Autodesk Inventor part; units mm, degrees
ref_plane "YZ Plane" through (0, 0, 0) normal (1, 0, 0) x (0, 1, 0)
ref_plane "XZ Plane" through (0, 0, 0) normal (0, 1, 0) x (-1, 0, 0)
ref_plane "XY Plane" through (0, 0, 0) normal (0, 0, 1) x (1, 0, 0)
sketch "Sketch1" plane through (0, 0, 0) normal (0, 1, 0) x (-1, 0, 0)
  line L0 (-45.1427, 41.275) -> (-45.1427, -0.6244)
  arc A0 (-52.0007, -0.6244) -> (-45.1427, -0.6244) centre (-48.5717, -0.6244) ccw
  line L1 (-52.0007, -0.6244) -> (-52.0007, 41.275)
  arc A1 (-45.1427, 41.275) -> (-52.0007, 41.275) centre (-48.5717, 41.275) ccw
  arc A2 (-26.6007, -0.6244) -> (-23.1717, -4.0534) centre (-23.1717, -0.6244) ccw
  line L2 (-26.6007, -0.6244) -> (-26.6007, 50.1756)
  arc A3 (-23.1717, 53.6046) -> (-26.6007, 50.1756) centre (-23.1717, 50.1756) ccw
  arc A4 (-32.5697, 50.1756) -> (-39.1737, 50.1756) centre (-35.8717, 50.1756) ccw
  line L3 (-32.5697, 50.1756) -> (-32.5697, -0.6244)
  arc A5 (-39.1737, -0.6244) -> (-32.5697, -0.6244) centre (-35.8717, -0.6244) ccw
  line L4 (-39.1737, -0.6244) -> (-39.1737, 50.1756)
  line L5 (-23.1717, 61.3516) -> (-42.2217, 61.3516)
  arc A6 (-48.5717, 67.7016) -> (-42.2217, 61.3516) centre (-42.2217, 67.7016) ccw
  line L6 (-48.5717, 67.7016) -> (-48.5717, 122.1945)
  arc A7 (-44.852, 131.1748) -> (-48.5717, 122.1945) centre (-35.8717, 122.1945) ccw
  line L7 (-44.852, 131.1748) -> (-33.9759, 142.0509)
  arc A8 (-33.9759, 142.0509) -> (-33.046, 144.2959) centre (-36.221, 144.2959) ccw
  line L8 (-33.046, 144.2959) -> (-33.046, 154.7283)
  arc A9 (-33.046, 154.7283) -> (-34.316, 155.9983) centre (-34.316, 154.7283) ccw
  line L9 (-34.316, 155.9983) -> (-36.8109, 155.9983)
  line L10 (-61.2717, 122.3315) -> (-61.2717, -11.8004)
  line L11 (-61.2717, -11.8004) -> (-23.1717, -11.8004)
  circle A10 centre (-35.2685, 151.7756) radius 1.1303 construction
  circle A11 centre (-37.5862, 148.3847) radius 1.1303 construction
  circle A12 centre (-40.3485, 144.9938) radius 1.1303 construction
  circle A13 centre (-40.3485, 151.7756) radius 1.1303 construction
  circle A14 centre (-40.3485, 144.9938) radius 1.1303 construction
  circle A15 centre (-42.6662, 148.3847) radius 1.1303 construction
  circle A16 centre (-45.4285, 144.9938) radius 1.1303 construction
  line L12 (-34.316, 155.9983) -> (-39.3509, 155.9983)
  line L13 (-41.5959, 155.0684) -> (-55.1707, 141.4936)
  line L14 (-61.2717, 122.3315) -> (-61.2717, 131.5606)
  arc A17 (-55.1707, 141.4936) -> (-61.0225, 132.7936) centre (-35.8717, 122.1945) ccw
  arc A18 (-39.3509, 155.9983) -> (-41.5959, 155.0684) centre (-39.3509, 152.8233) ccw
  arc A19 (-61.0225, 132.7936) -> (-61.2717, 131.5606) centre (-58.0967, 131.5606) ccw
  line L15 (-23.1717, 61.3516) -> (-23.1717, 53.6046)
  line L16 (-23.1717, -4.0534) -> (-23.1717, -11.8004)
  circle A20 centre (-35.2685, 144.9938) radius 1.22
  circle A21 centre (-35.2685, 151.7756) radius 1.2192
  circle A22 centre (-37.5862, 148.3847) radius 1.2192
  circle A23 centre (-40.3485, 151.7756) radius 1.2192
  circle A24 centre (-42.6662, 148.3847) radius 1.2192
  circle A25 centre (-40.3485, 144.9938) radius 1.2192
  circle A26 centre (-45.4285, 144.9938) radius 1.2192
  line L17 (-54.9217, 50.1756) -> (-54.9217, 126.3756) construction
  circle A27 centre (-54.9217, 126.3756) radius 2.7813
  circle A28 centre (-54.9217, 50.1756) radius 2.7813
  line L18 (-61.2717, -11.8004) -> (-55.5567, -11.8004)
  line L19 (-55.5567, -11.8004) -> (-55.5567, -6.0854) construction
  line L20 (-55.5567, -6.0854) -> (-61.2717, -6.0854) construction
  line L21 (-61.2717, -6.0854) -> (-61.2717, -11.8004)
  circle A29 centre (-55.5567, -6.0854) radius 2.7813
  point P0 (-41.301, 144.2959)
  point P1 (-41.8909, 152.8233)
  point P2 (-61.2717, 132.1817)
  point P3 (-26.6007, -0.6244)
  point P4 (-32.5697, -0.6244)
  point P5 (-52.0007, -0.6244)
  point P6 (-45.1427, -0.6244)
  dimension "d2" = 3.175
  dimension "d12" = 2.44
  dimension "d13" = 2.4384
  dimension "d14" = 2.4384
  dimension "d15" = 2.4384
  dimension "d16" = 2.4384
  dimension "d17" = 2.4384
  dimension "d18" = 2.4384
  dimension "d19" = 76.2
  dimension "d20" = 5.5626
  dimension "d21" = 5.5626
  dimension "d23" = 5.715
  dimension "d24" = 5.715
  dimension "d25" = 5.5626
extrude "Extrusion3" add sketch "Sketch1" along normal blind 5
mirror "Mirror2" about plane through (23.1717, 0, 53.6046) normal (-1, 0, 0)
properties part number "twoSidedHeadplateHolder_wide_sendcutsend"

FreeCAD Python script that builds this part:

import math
import FreeCAD as App
import Part
import Sketcher
Q = App.Units.Quantity

doc = App.newDocument("Part")
body = doc.addObject("PartDesign::Body", "Body")

sketch1 = body.newObject("Sketcher::SketchObject", "Sketch")
sketch1.AttachmentSupport = (doc.getObject("XZ_Plane"), [""])
sketch1.MapMode = "FlatFace"
sketch1.addGeometry([
    Part.ArcOfCircle(Part.Circle(App.Vector(23.2, -0.6, 0), App.Vector(0, 0, 1), 3.4), math.radians(-90), math.radians(0)),
    Part.LineSegment(App.Vector(26.6, -0.6, 0), App.Vector(26.6, 50.2, 0)),
    Part.ArcOfCircle(Part.Circle(App.Vector(23.2, 50.2, 0), App.Vector(0, 0, 1), 3.4), math.radians(0), math.radians(90)),
    Part.LineSegment(App.Vector(23.2, 53.6, 0), App.Vector(23.2, 61.4, 0)),
    Part.LineSegment(App.Vector(23.2, 61.4, 0), App.Vector(42.2, 61.4, 0)),
    Part.ArcOfCircle(Part.Circle(App.Vector(42.2, 67.7, 0), App.Vector(0, 0, 1), 6.4), math.radians(-90), math.radians(0)),
    Part.LineSegment(App.Vector(48.6, 67.7, 0), App.Vector(48.6, 122.2, 0)),
    Part.ArcOfCircle(Part.Circle(App.Vector(35.9, 122.2, 0), App.Vector(0, 0, 1), 12.7), math.radians(0), math.radians(45)),
    Part.LineSegment(App.Vector(44.9, 131.2, 0), App.Vector(34, 142.1, 0)),
    Part.ArcOfCircle(Part.Circle(App.Vector(36.2, 144.3, 0), App.Vector(0, 0, 1), 3.2), math.radians(180), math.radians(225)),
    Part.LineSegment(App.Vector(33, 144.3, 0), App.Vector(33, 154.7, 0)),
    Part.ArcOfCircle(Part.Circle(App.Vector(34.3, 154.7, 0), App.Vector(0, 0, 1), 1.3), math.radians(90), math.radians(180)),
    Part.LineSegment(App.Vector(34.3, 156, 0), App.Vector(39.4, 156, 0)),
    Part.ArcOfCircle(Part.Circle(App.Vector(39.4, 152.8, 0), App.Vector(0, 0, 1), 3.2), math.radians(45), math.radians(90)),
    Part.LineSegment(App.Vector(41.6, 155.1, 0), App.Vector(55.2, 141.5, 0)),
    Part.ArcOfCircle(Part.Circle(App.Vector(35.9, 122.2, 0), App.Vector(0, 0, 1), 27.3), math.radians(23), math.radians(45)),
    Part.ArcOfCircle(Part.Circle(App.Vector(58.1, 131.6, 0), App.Vector(0, 0, 1), 3.2), math.radians(0), math.radians(23)),
    Part.LineSegment(App.Vector(61.3, 131.6, 0), App.Vector(61.3, -11.8, 0)),
    Part.LineSegment(App.Vector(61.3, -11.8, 0), App.Vector(23.2, -11.8, 0)),
    Part.LineSegment(App.Vector(23.2, -11.8, 0), App.Vector(23.2, -4.1, 0)),
    Part.Circle(App.Vector(55.6, -6.1, 0), App.Vector(0, 0, 1), 2.8),
    Part.ArcOfCircle(Part.Circle(App.Vector(48.6, 41.3, 0), App.Vector(0, 0, 1), 3.4), math.radians(0), math.radians(180)),
    Part.LineSegment(App.Vector(45.1, 41.3, 0), App.Vector(45.1, -0.6, 0)),
    Part.ArcOfCircle(Part.Circle(App.Vector(48.6, -0.6, 0), App.Vector(0, 0, 1), 3.4), math.radians(180), math.radians(360)),
    Part.LineSegment(App.Vector(52, -0.6, 0), App.Vector(52, 41.3, 0)),
    Part.Circle(App.Vector(54.9, 50.2, 0), App.Vector(0, 0, 1), 2.8),
    Part.ArcOfCircle(Part.Circle(App.Vector(35.9, 50.2, 0), App.Vector(0, 0, 1), 3.3), math.radians(0), math.radians(180)),
    Part.LineSegment(App.Vector(32.6, 50.2, 0), App.Vector(32.6, -0.6, 0)),
    Part.ArcOfCircle(Part.Circle(App.Vector(35.9, -0.6, 0), App.Vector(0, 0, 1), 3.3), math.radians(180), math.radians(360)),
    Part.LineSegment(App.Vector(39.2, -0.6, 0), App.Vector(39.2, 50.2, 0)),
    Part.Circle(App.Vector(54.9, 126.4, 0), App.Vector(0, 0, 1), 2.8),
    Part.Circle(App.Vector(45.4, 145, 0), App.Vector(0, 0, 1), 1.2),
    Part.Circle(App.Vector(42.7, 148.4, 0), App.Vector(0, 0, 1), 1.2),
    Part.Circle(App.Vector(40.3, 145, 0), App.Vector(0, 0, 1), 1.2),
    Part.Circle(App.Vector(40.3, 151.8, 0), App.Vector(0, 0, 1), 1.2),
    Part.Circle(App.Vector(37.6, 148.4, 0), App.Vector(0, 0, 1), 1.2),
    Part.Circle(App.Vector(35.3, 145, 0), App.Vector(0, 0, 1), 1.2),
    Part.Circle(App.Vector(35.3, 151.8, 0), App.Vector(0, 0, 1), 1.2),
], False)
sketch1.addConstraint([
    Sketcher.Constraint("Tangent", 0, 2, 1, 1),
    Sketcher.Constraint("Tangent", 1, 2, 2, 1),
    Sketcher.Constraint("Coincident", 2, 2, 3, 1),
    Sketcher.Constraint("Coincident", 3, 2, 4, 1),
    Sketcher.Constraint("Tangent", 4, 2, 5, 1),
    Sketcher.Constraint("Tangent", 5, 2, 6, 1),
    Sketcher.Constraint("Tangent", 6, 2, 7, 1),
    Sketcher.Constraint("Tangent", 7, 2, 8, 1),
    Sketcher.Constraint("Tangent", 8, 2, 9, 2),
    Sketcher.Constraint("Tangent", 9, 1, 10, 1),
    Sketcher.Constraint("Tangent", 10, 2, 11, 2),
    Sketcher.Constraint("Tangent", 11, 1, 12, 1),
    Sketcher.Constraint("Tangent", 12, 2, 13, 2),
    Sketcher.Constraint("Tangent", 13, 1, 14, 1),
    Sketcher.Constraint("Tangent", 14, 2, 15, 2),
    Sketcher.Constraint("Tangent", 15, 1, 16, 2),
    Sketcher.Constraint("Tangent", 16, 1, 17, 1),
    Sketcher.Constraint("Coincident", 17, 2, 18, 1),
    Sketcher.Constraint("Coincident", 18, 2, 19, 1),
    Sketcher.Constraint("Coincident", 19, 2, 0, 1),
    Sketcher.Constraint("Tangent", 21, 2, 22, 1),
    Sketcher.Constraint("Tangent", 22, 2, 23, 1),
    Sketcher.Constraint("Tangent", 23, 2, 24, 1),
    Sketcher.Constraint("Tangent", 24, 2, 21, 1),
    Sketcher.Constraint("Tangent", 26, 2, 27, 1),
    Sketcher.Constraint("Tangent", 27, 2, 28, 1),
    Sketcher.Constraint("Tangent", 28, 2, 29, 1),
    Sketcher.Constraint("Tangent", 29, 2, 26, 1),
    Sketcher.Constraint("Vertical", 1),
    Sketcher.Constraint("Vertical", 3),
    Sketcher.Constraint("Horizontal", 4),
    Sketcher.Constraint("Vertical", 6),
    Sketcher.Constraint("Vertical", 10),
    Sketcher.Constraint("Horizontal", 12),
    Sketcher.Constraint("Vertical", 17),
    Sketcher.Constraint("Horizontal", 18),
    Sketcher.Constraint("Vertical", 19),
    Sketcher.Constraint("Vertical", 22),
    Sketcher.Constraint("Vertical", 24),
    Sketcher.Constraint("Vertical", 27),
    Sketcher.Constraint("Vertical", 29),
    Sketcher.Constraint("Equal", 0, 2),
    Sketcher.Constraint("Equal", 9, 13),
    Sketcher.Constraint("Equal", 13, 16),
    Sketcher.Constraint("Equal", 2, 21),
    Sketcher.Constraint("Equal", 20, 25),
    Sketcher.Constraint("Equal", 25, 30),
    Sketcher.Constraint("Equal", 31, 32),
    Sketcher.Constraint("Equal", 32, 33),
    Sketcher.Constraint("Equal", 33, 34),
    Sketcher.Constraint("Equal", 34, 35),
    Sketcher.Constraint("Equal", 35, 37),
    Sketcher.Constraint("Parallel", 8, 14),
    Sketcher.Constraint("Horizontal", 0, 3, 23, 3),
    Sketcher.Constraint("Horizontal", 2, 3, 25, 3),
    Sketcher.Constraint("Horizontal", 25, 3, 26, 3),
    Sketcher.Constraint("Horizontal", 23, 3, 28, 3),
    Sketcher.Constraint("Horizontal", 31, 3, 33, 3),
    Sketcher.Constraint("Horizontal", 32, 3, 35, 3),
    Sketcher.Constraint("Horizontal", 33, 3, 36, 3),
    Sketcher.Constraint("Horizontal", 34, 3, 37, 3),
    Sketcher.Constraint("Vertical", 7, 3, 26, 3),
    Sketcher.Constraint("Vertical", 25, 3, 30, 3),
    Sketcher.Constraint("Vertical", 33, 3, 34, 3),
    Sketcher.Constraint("Vertical", 36, 3, 37, 3),
    Sketcher.Constraint("Vertical", 0, 3, 2, 2),
    Sketcher.Constraint("Vertical", 23, 3, 5, 2),
    Sketcher.Constraint("Vertical", 3, 2, 18, 2),
    Sketcher.Constraint("Equal", 3, 19),
    Sketcher.Constraint("Diameter", 20, Q("0.219 in")),
    Sketcher.Constraint("Diameter", 31, Q("0.096 in")),
    Sketcher.Constraint("Radius", 9, Q("0.125 in")),
    Sketcher.Constraint("Radius", 7, Q("0.5 in")),
    Sketcher.Constraint("Diameter", 36, Q("2.44 mm")),
    Sketcher.Constraint("DistanceY", 1, 1, 1, 2, Q("2 in")),
    Sketcher.Constraint("Radius", 5, Q("0.25 in")),
    Sketcher.Constraint("Radius", 11, Q("0.05 in")),
    Sketcher.Constraint("Radius", 26, Q("0.13 in")),
    Sketcher.Constraint("DistanceX", 18, 2, 18, 1, Q("1.5 in")),
    Sketcher.Constraint("Angle", 8, Q("135 deg")),
    Sketcher.Constraint("Radius", 0, Q("0.135 in")),
    Sketcher.Constraint("DistanceX", 2, 3, 21, 3, Q("1 in")),
    Sketcher.Constraint("DistanceX", 30, 3, 16, 3, Q("0.125 in")),
    Sketcher.Constraint("DistanceX", 20, 3, 17, 2, Q("0.225 in")),
    Sketcher.Constraint("DistanceY", 17, 2, 20, 3, Q("0.225 in")),
    Sketcher.Constraint("DistanceX", 33, 3, 31, 3, Q("0.2 in")),
    Sketcher.Constraint("DistanceX", 35, 3, 32, 3, Q("0.2 in")),
    Sketcher.Constraint("DistanceX", 36, 3, 33, 3, Q("0.2 in")),
    Sketcher.Constraint("DistanceY", 3, 1, 3, 2, Q("0.305 in")),
    Sketcher.Constraint("Radius", 15, Q("27.2915 mm")),
    Sketcher.Constraint("DistanceY", 6, 1, 6, 2, Q("2.1454 in")),
    Sketcher.Constraint("DistanceY", -1, 1, 21, 3, Q("1.625 in")),
    Sketcher.Constraint("DistanceX", 11, 3, 31, 3, Q("0.4375 in")),
    Sketcher.Constraint("DistanceY", 30, 3, 31, 3, Q("0.733 in")),
    Sketcher.Constraint("DistanceY", 33, 3, 34, 3, Q("0.267 in")),
    Sketcher.Constraint("DistanceX", 7, 2, 14, 2, Q("0.406248 in")),
    Sketcher.Constraint("DistanceY", 7, 2, 14, 2, Q("0.406252 in")),
    Sketcher.Constraint("DistanceX", 12, 1, 12, 2, Q("5.035 mm")),
    Sketcher.Constraint("DistanceY", 22, 2, 22, 1, Q("41.8994 mm")),
    Sketcher.Constraint("DistanceX", 15, 3, 9, 3, Q("0.0137 in")),
    Sketcher.Constraint("DistanceY", 7, 3, 30, 3, Q("0.1646 in")),
    Sketcher.Constraint("DistanceY", 31, 3, 32, 3, Q("0.1335 in")),
    Sketcher.Constraint("DistanceX", 32, 3, 16, 3, Q("0.6075 in")),
    Sketcher.Constraint("DistanceX", -1, 1, 0, 3, Q("23.1717 mm")),
])
pad1 = body.newObject("PartDesign::Pad", "Pad")
pad1.Profile = sketch1
pad1.Length = 5
pad1.Reversed = True
doc.recompute()

datumplane = body.newObject("PartDesign::Plane", "DatumPlane")
datumplane.AttachmentSupport = (doc.getObject("YZ_Plane"), [""])
datumplane.MapMode = "FlatFace"
datumplane.AttachmentOffset = App.Placement(App.Vector(0, 0, 23.1717), App.Rotation())
mirrored = body.newObject("PartDesign::Mirrored", "Mirrored")
mirrored.TransformMode = "Transform body"
mirrored.MirrorPlane = (datumplane, [""])
body.Tip = mirrored

doc.recompute()
